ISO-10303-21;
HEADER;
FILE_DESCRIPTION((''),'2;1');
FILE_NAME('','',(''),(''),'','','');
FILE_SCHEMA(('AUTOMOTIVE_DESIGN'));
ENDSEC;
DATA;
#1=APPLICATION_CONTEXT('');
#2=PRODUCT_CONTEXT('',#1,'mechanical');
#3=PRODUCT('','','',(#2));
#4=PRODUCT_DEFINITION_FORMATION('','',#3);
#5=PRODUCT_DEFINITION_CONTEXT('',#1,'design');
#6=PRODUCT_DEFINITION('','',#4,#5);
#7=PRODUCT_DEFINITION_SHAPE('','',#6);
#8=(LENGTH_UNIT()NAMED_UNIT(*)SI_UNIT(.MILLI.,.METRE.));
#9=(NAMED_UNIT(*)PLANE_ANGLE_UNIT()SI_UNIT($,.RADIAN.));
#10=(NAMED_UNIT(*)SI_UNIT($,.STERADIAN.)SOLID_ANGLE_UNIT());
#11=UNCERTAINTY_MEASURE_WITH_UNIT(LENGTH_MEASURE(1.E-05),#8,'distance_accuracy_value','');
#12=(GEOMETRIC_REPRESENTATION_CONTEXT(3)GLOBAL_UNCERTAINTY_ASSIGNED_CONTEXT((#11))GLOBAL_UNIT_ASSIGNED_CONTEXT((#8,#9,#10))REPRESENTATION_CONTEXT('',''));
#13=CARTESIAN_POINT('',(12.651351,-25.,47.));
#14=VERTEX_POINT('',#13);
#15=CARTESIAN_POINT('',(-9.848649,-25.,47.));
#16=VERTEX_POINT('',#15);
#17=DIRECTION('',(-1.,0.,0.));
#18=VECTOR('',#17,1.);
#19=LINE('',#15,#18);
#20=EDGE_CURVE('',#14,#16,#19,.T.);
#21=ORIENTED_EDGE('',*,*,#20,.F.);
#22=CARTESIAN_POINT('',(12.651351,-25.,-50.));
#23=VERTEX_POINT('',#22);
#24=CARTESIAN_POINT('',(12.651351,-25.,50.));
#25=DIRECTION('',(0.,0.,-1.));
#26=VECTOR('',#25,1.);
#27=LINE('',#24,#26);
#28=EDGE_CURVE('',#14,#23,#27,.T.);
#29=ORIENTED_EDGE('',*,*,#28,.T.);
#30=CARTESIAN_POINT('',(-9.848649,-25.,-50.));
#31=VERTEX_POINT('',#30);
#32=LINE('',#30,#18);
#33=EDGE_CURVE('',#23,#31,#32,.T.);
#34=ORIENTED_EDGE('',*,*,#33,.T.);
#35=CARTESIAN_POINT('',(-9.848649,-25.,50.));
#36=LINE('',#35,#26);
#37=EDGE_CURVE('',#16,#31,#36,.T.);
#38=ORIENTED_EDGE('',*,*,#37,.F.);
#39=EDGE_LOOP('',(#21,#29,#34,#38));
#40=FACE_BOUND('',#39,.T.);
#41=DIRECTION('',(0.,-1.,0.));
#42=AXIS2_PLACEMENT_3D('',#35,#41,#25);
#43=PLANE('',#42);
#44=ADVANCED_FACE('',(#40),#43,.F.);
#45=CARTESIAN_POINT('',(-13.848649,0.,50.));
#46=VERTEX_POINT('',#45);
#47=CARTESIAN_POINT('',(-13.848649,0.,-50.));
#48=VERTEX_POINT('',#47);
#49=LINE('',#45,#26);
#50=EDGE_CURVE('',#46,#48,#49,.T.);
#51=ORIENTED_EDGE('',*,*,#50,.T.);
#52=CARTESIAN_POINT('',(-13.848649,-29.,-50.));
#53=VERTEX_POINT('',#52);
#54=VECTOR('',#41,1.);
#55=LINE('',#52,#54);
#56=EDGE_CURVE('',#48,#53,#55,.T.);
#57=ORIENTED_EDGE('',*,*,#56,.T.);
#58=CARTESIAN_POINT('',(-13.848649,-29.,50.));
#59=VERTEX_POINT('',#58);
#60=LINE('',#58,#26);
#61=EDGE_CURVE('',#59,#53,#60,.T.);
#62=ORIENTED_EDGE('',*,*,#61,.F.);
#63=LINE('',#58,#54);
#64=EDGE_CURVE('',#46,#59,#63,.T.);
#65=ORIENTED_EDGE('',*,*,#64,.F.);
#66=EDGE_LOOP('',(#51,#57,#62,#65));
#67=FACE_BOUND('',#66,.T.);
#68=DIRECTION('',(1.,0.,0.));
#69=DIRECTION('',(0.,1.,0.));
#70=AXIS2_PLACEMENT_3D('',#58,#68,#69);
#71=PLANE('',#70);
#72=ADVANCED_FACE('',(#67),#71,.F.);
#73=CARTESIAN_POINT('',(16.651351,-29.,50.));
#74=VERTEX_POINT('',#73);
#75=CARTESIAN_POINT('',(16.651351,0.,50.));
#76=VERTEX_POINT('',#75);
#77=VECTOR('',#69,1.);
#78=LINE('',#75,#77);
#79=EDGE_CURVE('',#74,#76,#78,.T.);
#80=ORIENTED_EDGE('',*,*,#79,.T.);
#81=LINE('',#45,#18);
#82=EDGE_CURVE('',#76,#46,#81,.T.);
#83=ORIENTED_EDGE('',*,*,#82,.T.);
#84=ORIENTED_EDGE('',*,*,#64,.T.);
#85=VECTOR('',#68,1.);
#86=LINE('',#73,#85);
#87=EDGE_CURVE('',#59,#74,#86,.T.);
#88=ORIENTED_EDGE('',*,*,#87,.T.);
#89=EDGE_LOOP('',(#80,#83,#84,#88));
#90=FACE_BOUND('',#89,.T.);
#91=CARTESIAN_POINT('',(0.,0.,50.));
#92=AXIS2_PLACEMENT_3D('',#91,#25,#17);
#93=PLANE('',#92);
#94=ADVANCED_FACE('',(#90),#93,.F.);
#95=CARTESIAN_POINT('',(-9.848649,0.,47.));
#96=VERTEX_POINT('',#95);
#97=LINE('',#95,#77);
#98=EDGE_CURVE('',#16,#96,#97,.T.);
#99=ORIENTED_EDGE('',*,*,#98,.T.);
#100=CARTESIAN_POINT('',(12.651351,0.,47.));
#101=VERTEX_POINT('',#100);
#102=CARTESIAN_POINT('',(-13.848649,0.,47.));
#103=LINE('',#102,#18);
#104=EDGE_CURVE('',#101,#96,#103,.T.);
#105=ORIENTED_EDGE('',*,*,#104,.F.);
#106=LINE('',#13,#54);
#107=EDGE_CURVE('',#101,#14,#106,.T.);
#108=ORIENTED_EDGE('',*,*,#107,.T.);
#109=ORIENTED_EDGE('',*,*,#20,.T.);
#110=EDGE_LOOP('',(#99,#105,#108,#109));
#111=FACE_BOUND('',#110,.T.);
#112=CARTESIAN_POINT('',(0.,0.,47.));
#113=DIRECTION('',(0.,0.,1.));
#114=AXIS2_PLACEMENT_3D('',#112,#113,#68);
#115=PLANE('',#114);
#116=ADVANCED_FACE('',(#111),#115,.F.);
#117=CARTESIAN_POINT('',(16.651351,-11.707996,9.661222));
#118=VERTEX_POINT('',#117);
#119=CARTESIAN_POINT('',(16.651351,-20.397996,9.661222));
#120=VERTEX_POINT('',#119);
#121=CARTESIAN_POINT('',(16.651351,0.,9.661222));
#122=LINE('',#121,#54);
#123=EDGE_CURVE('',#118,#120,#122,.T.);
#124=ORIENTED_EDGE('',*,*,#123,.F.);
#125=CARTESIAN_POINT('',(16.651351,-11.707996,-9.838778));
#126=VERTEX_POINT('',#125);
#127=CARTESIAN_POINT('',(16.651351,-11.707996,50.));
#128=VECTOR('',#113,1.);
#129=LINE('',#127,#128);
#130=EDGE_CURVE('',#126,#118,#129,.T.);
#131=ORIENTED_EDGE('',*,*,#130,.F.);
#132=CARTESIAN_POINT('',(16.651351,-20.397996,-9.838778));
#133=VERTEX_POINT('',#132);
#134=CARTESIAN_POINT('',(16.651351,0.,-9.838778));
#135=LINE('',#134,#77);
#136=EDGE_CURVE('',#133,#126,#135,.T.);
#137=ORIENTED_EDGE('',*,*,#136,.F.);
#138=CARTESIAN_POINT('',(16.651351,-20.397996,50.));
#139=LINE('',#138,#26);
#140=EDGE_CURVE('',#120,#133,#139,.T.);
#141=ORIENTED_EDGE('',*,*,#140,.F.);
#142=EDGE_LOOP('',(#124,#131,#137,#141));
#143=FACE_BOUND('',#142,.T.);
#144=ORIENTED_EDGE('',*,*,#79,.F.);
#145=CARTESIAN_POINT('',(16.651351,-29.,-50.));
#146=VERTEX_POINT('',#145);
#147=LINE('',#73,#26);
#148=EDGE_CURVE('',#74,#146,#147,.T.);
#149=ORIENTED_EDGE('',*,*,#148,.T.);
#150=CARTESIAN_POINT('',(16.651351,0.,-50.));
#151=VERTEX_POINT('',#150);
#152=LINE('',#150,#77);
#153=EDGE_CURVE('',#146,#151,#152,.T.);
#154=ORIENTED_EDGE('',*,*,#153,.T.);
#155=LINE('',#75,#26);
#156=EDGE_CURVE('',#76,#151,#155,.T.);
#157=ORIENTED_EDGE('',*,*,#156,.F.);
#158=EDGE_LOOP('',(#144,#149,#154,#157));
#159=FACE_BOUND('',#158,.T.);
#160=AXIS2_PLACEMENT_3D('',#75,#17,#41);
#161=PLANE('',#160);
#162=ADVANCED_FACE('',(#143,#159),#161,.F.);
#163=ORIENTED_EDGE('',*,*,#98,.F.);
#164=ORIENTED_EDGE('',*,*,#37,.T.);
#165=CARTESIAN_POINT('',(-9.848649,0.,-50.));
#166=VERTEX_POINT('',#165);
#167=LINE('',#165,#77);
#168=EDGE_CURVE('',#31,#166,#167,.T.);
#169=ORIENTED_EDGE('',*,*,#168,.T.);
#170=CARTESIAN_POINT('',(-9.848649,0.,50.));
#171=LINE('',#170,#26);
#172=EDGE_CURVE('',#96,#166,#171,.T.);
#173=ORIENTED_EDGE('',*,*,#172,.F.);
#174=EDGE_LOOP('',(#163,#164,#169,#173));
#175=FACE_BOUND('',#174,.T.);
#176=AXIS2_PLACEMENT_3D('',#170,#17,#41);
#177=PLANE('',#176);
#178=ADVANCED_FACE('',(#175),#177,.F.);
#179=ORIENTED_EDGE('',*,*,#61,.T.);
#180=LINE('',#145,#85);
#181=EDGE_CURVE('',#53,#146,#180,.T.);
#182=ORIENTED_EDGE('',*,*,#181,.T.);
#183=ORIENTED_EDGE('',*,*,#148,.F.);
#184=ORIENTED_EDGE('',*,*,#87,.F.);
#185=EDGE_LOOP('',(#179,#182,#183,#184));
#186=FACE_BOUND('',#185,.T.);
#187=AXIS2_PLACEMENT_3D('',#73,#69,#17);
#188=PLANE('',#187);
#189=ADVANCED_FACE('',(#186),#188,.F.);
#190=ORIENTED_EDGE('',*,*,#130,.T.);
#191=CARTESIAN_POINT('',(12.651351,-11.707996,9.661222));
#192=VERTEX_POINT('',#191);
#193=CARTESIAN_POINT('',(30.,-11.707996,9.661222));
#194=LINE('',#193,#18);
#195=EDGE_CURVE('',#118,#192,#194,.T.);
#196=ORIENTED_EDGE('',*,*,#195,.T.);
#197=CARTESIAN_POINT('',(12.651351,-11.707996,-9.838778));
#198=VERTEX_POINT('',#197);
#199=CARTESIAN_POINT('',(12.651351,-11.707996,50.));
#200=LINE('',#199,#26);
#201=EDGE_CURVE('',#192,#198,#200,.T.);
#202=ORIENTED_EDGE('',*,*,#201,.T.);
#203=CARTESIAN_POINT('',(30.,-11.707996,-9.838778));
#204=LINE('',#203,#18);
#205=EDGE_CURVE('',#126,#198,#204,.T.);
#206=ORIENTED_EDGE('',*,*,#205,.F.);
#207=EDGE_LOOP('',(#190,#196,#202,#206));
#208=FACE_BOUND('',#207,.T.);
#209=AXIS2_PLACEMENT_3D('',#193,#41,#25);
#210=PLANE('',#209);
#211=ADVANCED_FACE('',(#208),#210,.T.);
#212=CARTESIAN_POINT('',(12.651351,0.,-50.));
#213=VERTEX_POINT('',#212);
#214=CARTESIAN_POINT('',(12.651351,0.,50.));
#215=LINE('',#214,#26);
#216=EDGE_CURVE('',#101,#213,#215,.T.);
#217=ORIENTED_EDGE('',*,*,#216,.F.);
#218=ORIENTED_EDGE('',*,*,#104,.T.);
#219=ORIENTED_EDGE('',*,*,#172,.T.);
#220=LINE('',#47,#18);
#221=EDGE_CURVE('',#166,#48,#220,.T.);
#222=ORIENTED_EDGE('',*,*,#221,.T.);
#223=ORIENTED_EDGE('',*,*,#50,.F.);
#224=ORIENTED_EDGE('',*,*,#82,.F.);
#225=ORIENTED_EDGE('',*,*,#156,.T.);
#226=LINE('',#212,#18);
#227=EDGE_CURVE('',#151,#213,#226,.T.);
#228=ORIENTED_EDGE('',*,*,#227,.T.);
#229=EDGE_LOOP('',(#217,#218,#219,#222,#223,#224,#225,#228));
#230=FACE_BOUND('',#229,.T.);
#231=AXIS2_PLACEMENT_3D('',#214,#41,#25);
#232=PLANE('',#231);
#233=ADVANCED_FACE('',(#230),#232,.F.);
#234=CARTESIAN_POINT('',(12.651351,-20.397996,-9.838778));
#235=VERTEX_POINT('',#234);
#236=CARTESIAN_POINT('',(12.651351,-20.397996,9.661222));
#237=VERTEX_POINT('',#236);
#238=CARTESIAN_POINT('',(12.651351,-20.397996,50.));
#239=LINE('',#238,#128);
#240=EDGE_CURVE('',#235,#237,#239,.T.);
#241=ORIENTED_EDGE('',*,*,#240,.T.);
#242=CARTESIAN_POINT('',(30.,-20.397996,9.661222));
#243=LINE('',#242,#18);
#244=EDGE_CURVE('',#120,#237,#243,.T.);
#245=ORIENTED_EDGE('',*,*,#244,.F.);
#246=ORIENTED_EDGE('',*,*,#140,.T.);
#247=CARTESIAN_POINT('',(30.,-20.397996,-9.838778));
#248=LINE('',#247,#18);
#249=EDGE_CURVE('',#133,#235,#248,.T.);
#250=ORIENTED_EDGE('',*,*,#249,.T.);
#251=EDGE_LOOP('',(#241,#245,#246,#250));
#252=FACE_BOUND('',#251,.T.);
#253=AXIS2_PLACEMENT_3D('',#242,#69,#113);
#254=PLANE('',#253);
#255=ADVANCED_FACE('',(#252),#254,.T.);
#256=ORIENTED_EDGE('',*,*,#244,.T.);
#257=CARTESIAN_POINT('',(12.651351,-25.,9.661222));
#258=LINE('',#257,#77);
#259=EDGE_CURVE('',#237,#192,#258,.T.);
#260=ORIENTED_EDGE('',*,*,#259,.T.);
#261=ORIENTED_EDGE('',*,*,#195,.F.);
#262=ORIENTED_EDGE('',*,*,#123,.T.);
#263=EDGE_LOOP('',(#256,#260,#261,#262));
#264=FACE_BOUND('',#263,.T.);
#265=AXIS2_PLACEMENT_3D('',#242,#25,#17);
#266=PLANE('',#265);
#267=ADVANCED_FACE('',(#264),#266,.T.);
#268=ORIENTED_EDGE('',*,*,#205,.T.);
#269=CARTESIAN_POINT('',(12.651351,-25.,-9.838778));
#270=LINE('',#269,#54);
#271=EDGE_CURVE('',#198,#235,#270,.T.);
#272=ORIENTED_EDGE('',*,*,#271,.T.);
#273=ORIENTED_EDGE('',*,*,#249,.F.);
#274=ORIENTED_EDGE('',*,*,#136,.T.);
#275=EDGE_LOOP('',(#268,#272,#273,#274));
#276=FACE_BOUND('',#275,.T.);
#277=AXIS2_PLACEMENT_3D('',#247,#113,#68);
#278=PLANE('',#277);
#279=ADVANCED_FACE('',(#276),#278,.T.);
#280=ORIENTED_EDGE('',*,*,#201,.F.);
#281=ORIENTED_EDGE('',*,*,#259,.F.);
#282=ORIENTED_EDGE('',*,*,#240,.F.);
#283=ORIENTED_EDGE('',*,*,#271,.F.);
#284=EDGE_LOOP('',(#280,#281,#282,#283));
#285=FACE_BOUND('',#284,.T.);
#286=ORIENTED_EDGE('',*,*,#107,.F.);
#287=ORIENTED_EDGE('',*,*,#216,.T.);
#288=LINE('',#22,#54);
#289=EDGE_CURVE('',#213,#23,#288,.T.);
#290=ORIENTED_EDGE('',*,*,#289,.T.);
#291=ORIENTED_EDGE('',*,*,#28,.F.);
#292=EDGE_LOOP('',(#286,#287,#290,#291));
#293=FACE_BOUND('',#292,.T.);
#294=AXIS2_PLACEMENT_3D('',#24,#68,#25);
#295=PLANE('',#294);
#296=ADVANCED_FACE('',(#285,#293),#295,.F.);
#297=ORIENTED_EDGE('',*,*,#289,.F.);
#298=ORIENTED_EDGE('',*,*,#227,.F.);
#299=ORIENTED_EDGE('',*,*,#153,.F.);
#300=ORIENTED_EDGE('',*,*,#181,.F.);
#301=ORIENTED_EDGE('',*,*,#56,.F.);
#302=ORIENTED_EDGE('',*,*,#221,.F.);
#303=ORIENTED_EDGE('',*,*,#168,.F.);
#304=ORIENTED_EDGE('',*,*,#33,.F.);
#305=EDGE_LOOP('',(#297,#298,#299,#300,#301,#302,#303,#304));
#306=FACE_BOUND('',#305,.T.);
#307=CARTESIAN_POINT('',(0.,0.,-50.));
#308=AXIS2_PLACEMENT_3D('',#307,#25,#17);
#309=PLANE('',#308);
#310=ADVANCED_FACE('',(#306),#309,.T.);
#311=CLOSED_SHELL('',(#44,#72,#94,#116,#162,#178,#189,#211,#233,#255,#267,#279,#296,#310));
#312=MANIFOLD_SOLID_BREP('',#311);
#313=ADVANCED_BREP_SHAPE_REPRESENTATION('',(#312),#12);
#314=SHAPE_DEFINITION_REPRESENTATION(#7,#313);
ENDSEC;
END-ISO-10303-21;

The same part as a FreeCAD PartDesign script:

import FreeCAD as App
import Part
import Sketcher

V = App.Vector

doc = App.newDocument("Part")
body = doc.addObject("PartDesign::Body", "Body")

# Sketch on XY plane
sketch1 = body.newObject("Sketcher::SketchObject", "Sketch")
sketch1.AttachmentSupport = (doc.getObject("XY_Plane"), [""])
sketch1.MapMode = "FlatFace"
sketch1.addGeometry([
    Part.LineSegment(V(-9.8, -25, 0), V(-9.8, 0, 0)),  # 0
    Part.LineSegment(V(-9.8, 0, 0), V(-13.8, 0, 0)),  # 1
    Part.LineSegment(V(-13.8, 0, 0), V(-13.8, -29, 0)),  # 2
    Part.LineSegment(V(-13.8, -29, 0), V(16.7, -29, 0)),  # 3
    Part.LineSegment(V(16.7, -29, 0), V(16.7, 0, 0)),  # 4
    Part.LineSegment(V(16.7, 0, 0), V(12.7, 0, 0)),  # 5
    Part.LineSegment(V(12.7, 0, 0), V(12.7, -25, 0)),  # 6
    Part.LineSegment(V(12.7, -25, 0), V(-9.8, -25, 0)),  # 7
], False)
sketch1.addConstraint([
    Sketcher.Constraint("Coincident", 0, 2, 1, 1),
    Sketcher.Constraint("Coincident", 1, 2, 2, 1),
    Sketcher.Constraint("Coincident", 2, 2, 3, 1),
    Sketcher.Constraint("Coincident", 3, 2, 4, 1),
    Sketcher.Constraint("Coincident", 4, 2, 5, 1),
    Sketcher.Constraint("Coincident", 5, 2, 6, 1),
    Sketcher.Constraint("Coincident", 6, 2, 7, 1),
    Sketcher.Constraint("Coincident", 7, 2, 0, 1),
    Sketcher.Constraint("Vertical", 0),
    Sketcher.Constraint("Horizontal", 1),
    Sketcher.Constraint("Vertical", 2),
    Sketcher.Constraint("Horizontal", 3),
    Sketcher.Constraint("Vertical", 4),
    Sketcher.Constraint("Horizontal", 5),
    Sketcher.Constraint("Vertical", 6),
    Sketcher.Constraint("Horizontal", 7),
    Sketcher.Constraint("PointOnObject", 0, 2, -1),
    Sketcher.Constraint("PointOnObject", 4, 2, -1),
    Sketcher.Constraint("Equal", 1, 5),
    Sketcher.Constraint("DistanceX", 1, 2, 1, 1, 4.0),
    Sketcher.Constraint("DistanceY", 0, 1, 0, 2, 25.0),
    Sketcher.Constraint("DistanceY", 2, 2, 2, 1, 29.0),
    Sketcher.Constraint("DistanceX", 3, 1, 3, 2, 30.5),
    Sketcher.Constraint("DistanceX", 0, 2, -1, 1, 9.848649),
])
pad1 = body.newObject("PartDesign::Pad", "Pad")
pad1.Profile = sketch1
pad1.Length = 100
pad1.Midplane = True

# Sketch on XY plane
sketch2 = body.newObject("Sketcher::SketchObject", "Sketch001")
sketch2.AttachmentSupport = (doc.getObject("XY_Plane"), [""])
sketch2.MapMode = "FlatFace"
sketch2.AttachmentOffset = App.Placement(V(0, 0, 50), App.Rotation())
sketch2.addGeometry([
    Part.LineSegment(V(-14, 0, 0), V(-14, -29, 0)),
    Part.LineSegment(V(-14, -29, 0), V(17, -29, 0)),
    Part.LineSegment(V(17, -29, 0), V(17, 0, 0)),
    Part.LineSegment(V(17, 0, 0), V(-14, 0, 0)),
], False)
sketch2.addConstraint([
    Sketcher.Constraint("Coincident", 0, 2, 1, 1),
    Sketcher.Constraint("Coincident", 1, 2, 2, 1),
    Sketcher.Constraint("Coincident", 2, 2, 3, 1),
    Sketcher.Constraint("Coincident", 3, 2, 0, 1),
    Sketcher.Constraint("Vertical", 0),
    Sketcher.Constraint("Horizontal", 1),
    Sketcher.Constraint("Vertical", 2),
    Sketcher.Constraint("Horizontal", 3),
    Sketcher.Constraint("PointOnObject", 2, 2, -1),
    Sketcher.Constraint("DistanceY", 0, 2, 0, 1, 29.0),
    Sketcher.Constraint("DistanceX", 1, 1, 1, 2, 30.5),
    Sketcher.Constraint("DistanceX", 0, 2, -1, 1, 13.848649),
])
pad2 = body.newObject("PartDesign::Pad", "Pad001")
pad2.Profile = sketch2
pad2.Length = 3
pad2.Reversed = True

# Sketch on YZ plane
sketch3 = body.newObject("Sketcher::SketchObject", "Sketch002")
sketch3.AttachmentSupport = (doc.getObject("YZ_Plane"), [""])
sketch3.MapMode = "FlatFace"
sketch3.addGeometry([
    Part.LineSegment(V(-12, 10, 0), V(-20, 10, 0)),
    Part.LineSegment(V(-20, 10, 0), V(-20, -10, 0)),
    Part.LineSegment(V(-20, -10, 0), V(-12, -10, 0)),
    Part.LineSegment(V(-12, -10, 0), V(-12, 10, 0)),
], False)
sketch3.addConstraint([
    Sketcher.Constraint("Coincident", 0, 2, 1, 1),
    Sketcher.Constraint("Coincident", 1, 2, 2, 1),
    Sketcher.Constraint("Coincident", 2, 2, 3, 1),
    Sketcher.Constraint("Coincident", 3, 2, 0, 1),
    Sketcher.Constraint("Horizontal", 0),
    Sketcher.Constraint("Vertical", 1),
    Sketcher.Constraint("Horizontal", 2),
    Sketcher.Constraint("Vertical", 3),
    Sketcher.Constraint("DistanceY", 1, 2, 1, 1, 19.5),
    Sketcher.Constraint("DistanceX", 0, 2, 0, 1, 8.69),
    Sketcher.Constraint("DistanceY", -1, 1, 0, 2, 9.661222),
    Sketcher.Constraint("DistanceX", 0, 2, -1, 1, 20.397996),
])
pocket1 = body.newObject("PartDesign::Pocket", "Pocket")
pocket1.Profile = sketch3
pocket1.Length = 30
pocket1.Reversed = True

doc.recompute()
